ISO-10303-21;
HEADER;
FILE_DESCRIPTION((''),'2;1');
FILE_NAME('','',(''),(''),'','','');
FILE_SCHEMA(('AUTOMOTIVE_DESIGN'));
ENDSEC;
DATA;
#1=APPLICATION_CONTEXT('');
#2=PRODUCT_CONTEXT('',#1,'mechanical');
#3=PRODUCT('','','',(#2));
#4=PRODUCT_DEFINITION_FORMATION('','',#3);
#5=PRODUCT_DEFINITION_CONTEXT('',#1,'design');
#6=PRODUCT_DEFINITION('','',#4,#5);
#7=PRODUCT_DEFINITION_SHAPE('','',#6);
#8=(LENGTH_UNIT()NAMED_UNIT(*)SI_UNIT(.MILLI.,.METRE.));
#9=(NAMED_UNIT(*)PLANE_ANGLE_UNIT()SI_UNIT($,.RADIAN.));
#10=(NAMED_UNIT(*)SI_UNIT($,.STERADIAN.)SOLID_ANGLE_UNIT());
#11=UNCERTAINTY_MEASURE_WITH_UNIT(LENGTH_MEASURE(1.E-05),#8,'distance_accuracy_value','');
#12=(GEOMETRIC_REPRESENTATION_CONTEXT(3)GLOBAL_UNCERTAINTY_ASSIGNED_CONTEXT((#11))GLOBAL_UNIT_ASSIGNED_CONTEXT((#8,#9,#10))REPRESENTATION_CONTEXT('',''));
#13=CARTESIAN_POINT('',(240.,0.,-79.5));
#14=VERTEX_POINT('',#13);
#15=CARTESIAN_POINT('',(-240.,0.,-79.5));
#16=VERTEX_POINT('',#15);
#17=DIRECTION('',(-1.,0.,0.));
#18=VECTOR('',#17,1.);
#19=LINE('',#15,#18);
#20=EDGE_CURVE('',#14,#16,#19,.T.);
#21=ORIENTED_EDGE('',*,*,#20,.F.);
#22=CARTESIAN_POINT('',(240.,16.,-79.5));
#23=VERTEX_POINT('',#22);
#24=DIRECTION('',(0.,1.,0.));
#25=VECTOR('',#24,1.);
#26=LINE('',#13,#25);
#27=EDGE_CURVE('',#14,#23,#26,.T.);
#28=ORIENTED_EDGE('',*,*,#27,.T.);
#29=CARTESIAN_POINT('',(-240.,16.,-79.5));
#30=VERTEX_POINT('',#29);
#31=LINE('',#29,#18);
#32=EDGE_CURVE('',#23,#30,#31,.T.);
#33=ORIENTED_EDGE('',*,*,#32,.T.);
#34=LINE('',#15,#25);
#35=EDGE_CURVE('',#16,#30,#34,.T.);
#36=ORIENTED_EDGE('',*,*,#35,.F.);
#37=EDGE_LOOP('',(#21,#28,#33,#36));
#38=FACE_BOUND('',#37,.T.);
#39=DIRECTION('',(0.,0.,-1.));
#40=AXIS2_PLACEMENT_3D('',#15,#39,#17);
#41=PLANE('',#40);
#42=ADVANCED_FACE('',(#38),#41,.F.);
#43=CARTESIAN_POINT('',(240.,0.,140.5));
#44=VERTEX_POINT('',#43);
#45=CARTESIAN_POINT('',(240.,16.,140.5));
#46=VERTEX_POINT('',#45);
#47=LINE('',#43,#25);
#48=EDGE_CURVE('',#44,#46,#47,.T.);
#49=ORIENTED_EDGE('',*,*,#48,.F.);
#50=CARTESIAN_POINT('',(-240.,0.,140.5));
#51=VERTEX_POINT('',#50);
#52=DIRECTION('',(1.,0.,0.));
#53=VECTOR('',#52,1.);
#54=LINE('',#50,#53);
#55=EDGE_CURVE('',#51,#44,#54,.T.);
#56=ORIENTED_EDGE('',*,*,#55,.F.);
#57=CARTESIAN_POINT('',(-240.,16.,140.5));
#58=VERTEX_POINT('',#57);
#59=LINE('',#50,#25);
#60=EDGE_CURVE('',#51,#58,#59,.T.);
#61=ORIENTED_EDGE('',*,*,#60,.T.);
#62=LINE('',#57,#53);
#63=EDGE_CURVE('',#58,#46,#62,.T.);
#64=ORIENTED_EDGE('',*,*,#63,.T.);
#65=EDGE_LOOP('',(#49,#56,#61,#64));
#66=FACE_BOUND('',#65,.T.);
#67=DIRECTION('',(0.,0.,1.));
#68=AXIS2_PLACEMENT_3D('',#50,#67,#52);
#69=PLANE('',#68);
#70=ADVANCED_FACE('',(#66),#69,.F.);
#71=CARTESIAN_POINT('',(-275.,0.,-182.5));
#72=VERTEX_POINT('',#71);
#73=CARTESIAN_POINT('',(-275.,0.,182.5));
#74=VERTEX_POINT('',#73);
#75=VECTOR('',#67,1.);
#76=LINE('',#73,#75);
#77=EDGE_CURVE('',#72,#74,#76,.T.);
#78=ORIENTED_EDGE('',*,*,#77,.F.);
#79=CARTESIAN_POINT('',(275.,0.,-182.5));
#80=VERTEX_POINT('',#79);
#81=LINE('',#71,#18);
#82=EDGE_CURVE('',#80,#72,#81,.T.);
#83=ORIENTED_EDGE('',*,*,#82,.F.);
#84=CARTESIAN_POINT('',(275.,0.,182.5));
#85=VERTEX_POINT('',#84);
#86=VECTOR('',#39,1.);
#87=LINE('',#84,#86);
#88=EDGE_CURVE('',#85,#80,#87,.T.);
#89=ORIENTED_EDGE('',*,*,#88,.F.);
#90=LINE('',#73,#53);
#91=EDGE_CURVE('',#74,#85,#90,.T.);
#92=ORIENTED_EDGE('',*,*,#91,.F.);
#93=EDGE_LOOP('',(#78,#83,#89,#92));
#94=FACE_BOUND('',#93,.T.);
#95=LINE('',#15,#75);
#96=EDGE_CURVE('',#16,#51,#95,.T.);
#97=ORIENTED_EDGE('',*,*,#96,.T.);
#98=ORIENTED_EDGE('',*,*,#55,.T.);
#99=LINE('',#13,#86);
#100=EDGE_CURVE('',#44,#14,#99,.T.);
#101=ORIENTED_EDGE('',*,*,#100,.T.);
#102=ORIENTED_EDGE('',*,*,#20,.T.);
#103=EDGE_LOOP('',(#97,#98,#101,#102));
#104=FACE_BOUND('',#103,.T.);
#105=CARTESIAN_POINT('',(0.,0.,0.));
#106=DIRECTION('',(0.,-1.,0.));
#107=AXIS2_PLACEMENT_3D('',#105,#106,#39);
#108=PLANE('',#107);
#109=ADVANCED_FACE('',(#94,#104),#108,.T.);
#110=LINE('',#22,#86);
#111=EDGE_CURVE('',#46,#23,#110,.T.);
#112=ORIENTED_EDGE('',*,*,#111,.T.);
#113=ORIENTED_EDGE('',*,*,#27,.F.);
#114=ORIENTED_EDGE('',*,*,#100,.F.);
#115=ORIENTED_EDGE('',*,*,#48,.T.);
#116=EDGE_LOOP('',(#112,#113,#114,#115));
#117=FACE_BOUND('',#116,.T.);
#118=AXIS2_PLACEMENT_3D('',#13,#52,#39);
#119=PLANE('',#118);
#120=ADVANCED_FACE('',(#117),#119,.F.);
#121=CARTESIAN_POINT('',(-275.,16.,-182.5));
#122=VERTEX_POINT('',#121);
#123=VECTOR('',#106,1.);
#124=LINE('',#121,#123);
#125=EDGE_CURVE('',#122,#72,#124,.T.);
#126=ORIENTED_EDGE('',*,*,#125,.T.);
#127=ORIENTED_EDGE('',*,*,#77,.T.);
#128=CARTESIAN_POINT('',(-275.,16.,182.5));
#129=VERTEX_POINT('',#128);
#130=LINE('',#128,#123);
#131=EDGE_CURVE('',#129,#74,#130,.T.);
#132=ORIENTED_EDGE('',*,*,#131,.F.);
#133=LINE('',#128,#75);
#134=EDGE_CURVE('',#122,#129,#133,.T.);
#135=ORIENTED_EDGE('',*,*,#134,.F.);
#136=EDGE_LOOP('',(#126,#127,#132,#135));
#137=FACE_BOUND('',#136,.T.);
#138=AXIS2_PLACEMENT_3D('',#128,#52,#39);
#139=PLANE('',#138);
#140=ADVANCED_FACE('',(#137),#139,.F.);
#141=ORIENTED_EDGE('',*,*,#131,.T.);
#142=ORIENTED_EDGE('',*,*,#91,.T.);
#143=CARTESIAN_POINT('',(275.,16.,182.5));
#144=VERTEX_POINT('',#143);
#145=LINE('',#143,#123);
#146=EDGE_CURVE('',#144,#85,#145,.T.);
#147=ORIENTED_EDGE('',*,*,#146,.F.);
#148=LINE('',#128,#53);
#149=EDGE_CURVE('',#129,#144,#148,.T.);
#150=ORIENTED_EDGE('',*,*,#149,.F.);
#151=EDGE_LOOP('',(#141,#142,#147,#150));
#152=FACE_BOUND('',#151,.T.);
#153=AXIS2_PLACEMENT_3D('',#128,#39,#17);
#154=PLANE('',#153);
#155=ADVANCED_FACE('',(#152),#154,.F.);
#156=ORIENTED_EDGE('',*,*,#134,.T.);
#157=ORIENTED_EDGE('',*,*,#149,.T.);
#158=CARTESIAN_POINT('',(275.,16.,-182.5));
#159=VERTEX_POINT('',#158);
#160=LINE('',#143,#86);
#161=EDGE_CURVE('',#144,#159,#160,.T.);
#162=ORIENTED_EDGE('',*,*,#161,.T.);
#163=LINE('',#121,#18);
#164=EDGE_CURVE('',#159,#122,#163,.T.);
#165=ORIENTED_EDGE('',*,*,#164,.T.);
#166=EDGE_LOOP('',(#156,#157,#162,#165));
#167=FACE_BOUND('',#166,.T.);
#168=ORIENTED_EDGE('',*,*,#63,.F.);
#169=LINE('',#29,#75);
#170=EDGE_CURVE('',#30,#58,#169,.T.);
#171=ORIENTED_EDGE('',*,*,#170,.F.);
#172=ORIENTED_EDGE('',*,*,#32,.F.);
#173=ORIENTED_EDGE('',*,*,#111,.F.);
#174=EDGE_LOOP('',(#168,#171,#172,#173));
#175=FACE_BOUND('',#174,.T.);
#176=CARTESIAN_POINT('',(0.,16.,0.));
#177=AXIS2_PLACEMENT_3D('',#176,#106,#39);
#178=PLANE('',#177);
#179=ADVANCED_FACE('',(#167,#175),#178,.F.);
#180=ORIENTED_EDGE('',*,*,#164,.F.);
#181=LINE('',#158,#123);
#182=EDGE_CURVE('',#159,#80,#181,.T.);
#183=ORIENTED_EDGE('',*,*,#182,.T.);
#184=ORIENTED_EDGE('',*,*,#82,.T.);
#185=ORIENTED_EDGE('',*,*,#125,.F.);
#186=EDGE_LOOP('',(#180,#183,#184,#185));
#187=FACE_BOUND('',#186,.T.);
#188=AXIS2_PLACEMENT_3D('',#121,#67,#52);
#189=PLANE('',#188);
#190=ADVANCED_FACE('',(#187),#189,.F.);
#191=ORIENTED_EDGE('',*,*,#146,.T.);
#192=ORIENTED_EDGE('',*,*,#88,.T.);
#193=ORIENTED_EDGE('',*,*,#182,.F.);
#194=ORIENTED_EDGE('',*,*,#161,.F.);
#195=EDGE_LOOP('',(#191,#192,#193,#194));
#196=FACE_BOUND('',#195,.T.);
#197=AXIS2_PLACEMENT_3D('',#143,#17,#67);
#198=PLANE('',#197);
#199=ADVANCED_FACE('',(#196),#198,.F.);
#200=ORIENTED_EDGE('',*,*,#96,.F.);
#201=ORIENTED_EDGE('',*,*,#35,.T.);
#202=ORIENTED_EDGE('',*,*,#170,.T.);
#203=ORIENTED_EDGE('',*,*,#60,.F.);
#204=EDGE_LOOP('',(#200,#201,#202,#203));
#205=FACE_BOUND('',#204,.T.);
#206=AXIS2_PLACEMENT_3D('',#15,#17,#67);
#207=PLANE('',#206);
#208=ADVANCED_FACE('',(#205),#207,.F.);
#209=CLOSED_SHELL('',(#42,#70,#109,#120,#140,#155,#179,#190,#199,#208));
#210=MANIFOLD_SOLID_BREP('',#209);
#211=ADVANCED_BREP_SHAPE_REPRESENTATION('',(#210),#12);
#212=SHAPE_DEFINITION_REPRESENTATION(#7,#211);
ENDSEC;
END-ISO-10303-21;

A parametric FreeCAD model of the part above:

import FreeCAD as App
import Part
import Sketcher
from FreeCAD import Vector
Q = App.Units.Quantity


def add_polygon(sketch, points):
    """Adds a closed chain of lines whose ends are joined by coincident constraints."""
    first, n = sketch.GeometryCount, len(points)
    for a, b in zip(points, points[1:] + points[:1]):
        sketch.addGeometry(Part.LineSegment(App.Vector(*a, 0), App.Vector(*b, 0)), False)
    for i in range(n):
        sketch.addConstraint(Sketcher.Constraint("Coincident", first + i, 2, first + (i + 1) % n, 1))

doc = App.newDocument("Part")
params = doc.addObject("Spreadsheet::Sheet", "Params")
for row, (alias, value) in enumerate([
    ("sketch1_width", "550 mm"),
    ("sketch1_height", "365 mm"),
    ("pad1_length", "16 mm"),
    ("sketch2_width", "480 mm"),
    ("sketch2_height", "220 mm"),
    ("pocket1_length", "16 mm"),
], start=1):
    params.set(f"A{row}", alias)
    params.set(f"B{row}", "=" + value)
    params.setAlias(f"B{row}", alias)

body = doc.addObject("PartDesign::Body", "Body")

sketch1 = doc.addObject("Sketcher::SketchObject", "Sketch")
body.addObject(sketch1)
sketch1.AttachmentSupport = (doc.XZ_Plane, [""])
sketch1.MapMode = "FlatFace"
add_polygon(sketch1, [(-275, -182), (-275, 182), (275, 182), (275, -182)])
sketch1.addConstraint([
    Sketcher.Constraint("Vertical", 0),
    Sketcher.Constraint("Horizontal", 1),
    Sketcher.Constraint("Vertical", 2),
    Sketcher.Constraint("Horizontal", 3),
    Sketcher.Constraint("Symmetric", 0, 2, 2, 2, -1, 1),
    Sketcher.Constraint("DistanceX", 1, 1, 1, 2, Q("550 mm")),
    Sketcher.Constraint("DistanceY", 0, 1, 0, 2, Q("365 mm")),
])
sketch1.setExpression("Constraints[9]", "Params.sketch1_width")
sketch1.setExpression("Constraints[10]", "Params.sketch1_height")
pad1 = doc.addObject("PartDesign::Pad", "Pad")
body.addObject(pad1)
pad1.Profile = sketch1
pad1.setExpression("Length", "Params.pad1_length")
pad1.Reversed = True

sketch2 = doc.addObject("Sketcher::SketchObject", "Sketch001")
body.addObject(sketch2)
sketch2.AttachmentSupport = (doc.XZ_Plane, [""])
sketch2.MapMode = "FlatFace"
sketch2.AttachmentOffset = App.Placement(Vector(0, 0, -16), App.Rotation())
add_polygon(sketch2, [(-240, -80), (-240, 140), (240, 140), (240, -80)])
sketch2.addConstraint([
    Sketcher.Constraint("Vertical", 0),
    Sketcher.Constraint("Horizontal", 1),
    Sketcher.Constraint("Vertical", 2),
    Sketcher.Constraint("Horizontal", 3),
    Sketcher.Constraint("DistanceX", 1, 1, 1, 2, Q("480 mm")),
    Sketcher.Constraint("DistanceY", 0, 1, 0, 2, Q("220 mm")),
    Sketcher.Constraint("DistanceX", 0, 2, -1, 1, Q("240 mm")),
    Sketcher.Constraint("DistanceY", -1, 1, 0, 2, Q("140.5 mm")),
])
sketch2.setExpression("Constraints[8]", "Params.sketch2_width")
sketch2.setExpression("Constraints[9]", "Params.sketch2_height")
pocket1 = doc.addObject("PartDesign::Pocket", "Pocket")
body.addObject(pocket1)
pocket1.Profile = sketch2
pocket1.setExpression("Length", "Params.pocket1_length")
pocket1.Reversed = True

doc.recompute()
